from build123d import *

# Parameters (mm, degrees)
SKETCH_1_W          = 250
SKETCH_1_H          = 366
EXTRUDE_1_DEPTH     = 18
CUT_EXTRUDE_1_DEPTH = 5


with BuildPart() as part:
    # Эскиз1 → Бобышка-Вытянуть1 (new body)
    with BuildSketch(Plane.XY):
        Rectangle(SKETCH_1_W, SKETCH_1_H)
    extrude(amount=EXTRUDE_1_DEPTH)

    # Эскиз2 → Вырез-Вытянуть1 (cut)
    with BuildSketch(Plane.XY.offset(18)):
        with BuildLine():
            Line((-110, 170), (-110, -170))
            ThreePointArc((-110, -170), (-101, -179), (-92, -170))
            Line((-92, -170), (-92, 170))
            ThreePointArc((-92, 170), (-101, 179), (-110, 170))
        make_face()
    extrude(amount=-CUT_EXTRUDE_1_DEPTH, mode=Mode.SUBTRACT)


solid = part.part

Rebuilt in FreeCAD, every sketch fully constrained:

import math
import FreeCAD as App
import Part
import Sketcher

V = App.Vector
Q = App.Units.Quantity

doc = App.newDocument("Part")
body = doc.addObject("PartDesign::Body", "Body")

# Sketch on XY plane
sketch1 = body.newObject("Sketcher::SketchObject", "Sketch")
sketch1.AttachmentSupport = (doc.getObject("XY_Plane"), [""])
sketch1.MapMode = "FlatFace"
sketch1.addGeometry(Part.LineSegment(V(-125, 183, 0), V(-125, -183, 0)), False)
sketch1.addGeometry(Part.LineSegment(V(-125, -183, 0), V(125, -183, 0)), False)
sketch1.addGeometry(Part.LineSegment(V(125, -183, 0), V(125, 183, 0)), False)
sketch1.addGeometry(Part.LineSegment(V(125, 183, 0), V(-125, 183, 0)), False)
sketch1.addConstraint(Sketcher.Constraint("Coincident", 0, 2, 1, 1))
sketch1.addConstraint(Sketcher.Constraint("Coincident", 1, 2, 2, 1))
sketch1.addConstraint(Sketcher.Constraint("Coincident", 2, 2, 3, 1))
sketch1.addConstraint(Sketcher.Constraint("Coincident", 3, 2, 0, 1))
sketch1.addConstraint(Sketcher.Constraint("Vertical", 0))
sketch1.addConstraint(Sketcher.Constraint("Horizontal", 1))
sketch1.addConstraint(Sketcher.Constraint("Vertical", 2))
sketch1.addConstraint(Sketcher.Constraint("Horizontal", 3))
sketch1.addConstraint(Sketcher.Constraint("Symmetric", 0, 2, 2, 2, -1, 1))
sketch1.addConstraint(Sketcher.Constraint("DistanceX", 1, 1, 1, 2, Q("250 mm")))
sketch1.addConstraint(Sketcher.Constraint("DistanceY", 0, 2, 0, 1, Q("366 mm")))
pad1 = body.newObject("PartDesign::Pad", "Pad")
pad1.Profile = sketch1
pad1.Length = 18

# Sketch on XY plane
sketch2 = body.newObject("Sketcher::SketchObject", "Sketch001")
sketch2.AttachmentSupport = (doc.getObject("XY_Plane"), [""])
sketch2.MapMode = "FlatFace"
sketch2.AttachmentOffset = App.Placement(V(0, 0, 18), App.Rotation())
sketch2.addGeometry(Part.LineSegment(V(-110, 170, 0), V(-110, -170, 0)), False)
sketch2.addGeometry(Part.ArcOfCircle(Part.Circle(V(-101, -170, 0), V(0, 0, 1), 9), math.radians(180), math.radians(360)), False)
sketch2.addGeometry(Part.LineSegment(V(-92, -170, 0), V(-92, 170, 0)), False)
sketch2.addGeometry(Part.ArcOfCircle(Part.Circle(V(-101, 170, 0), V(0, 0, 1), 9), math.radians(0), math.radians(180)), False)
sketch2.addConstraint(Sketcher.Constraint("Tangent", 0, 2, 1, 1))
sketch2.addConstraint(Sketcher.Constraint("Tangent", 1, 2, 2, 1))
sketch2.addConstraint(Sketcher.Constraint("Tangent", 2, 2, 3, 1))
sketch2.addConstraint(Sketcher.Constraint("Tangent", 3, 2, 0, 1))
sketch2.addConstraint(Sketcher.Constraint("Vertical", 0))
sketch2.addConstraint(Sketcher.Constraint("Vertical", 2))
sketch2.addConstraint(Sketcher.Constraint("Radius", 1, Q("9 mm")))
sketch2.addConstraint(Sketcher.Constraint("DistanceY", 0, 2, 0, 1, Q("340 mm")))
sketch2.addConstraint(Sketcher.Constraint("DistanceX", 1, 3, -1, 1, Q("101 mm")))
sketch2.addConstraint(Sketcher.Constraint("DistanceY", 1, 3, -1, 1, Q("170 mm")))
pocket1 = body.newObject("PartDesign::Pocket", "Pocket")
pocket1.Profile = sketch2
pocket1.Length = 5

doc.recompute()
